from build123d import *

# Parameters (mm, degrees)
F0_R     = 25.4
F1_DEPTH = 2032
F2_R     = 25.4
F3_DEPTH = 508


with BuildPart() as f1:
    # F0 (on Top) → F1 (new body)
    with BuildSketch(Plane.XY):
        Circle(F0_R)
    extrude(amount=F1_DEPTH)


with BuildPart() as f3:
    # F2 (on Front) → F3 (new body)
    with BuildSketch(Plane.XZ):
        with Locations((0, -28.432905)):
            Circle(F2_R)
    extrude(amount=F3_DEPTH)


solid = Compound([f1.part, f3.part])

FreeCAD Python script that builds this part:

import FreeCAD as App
import Part
import Sketcher
from FreeCAD import Vector
Q = App.Units.Quantity

doc = App.newDocument("Part")
body = doc.addObject("PartDesign::Body", "Body")

sketch1 = body.newObject("Sketcher::SketchObject", "Sketch")
sketch1.AttachmentSupport = (doc.getObject("XY_Plane"), [""])
sketch1.MapMode = "FlatFace"
sketch1.addGeometry(Part.Circle(Vector(0, 0, 0), Vector(0, 0, 1), 25), False)
sketch1.addConstraint([
    Sketcher.Constraint("Coincident", 0, 3, -1, 1),
    Sketcher.Constraint("Diameter", 0, Q("2 in")),
])
pad1 = body.newObject("PartDesign::Pad", "Pad")
pad1.Profile = sketch1
pad1.Length = Q("80 in")
body2 = doc.addObject("PartDesign::Body", "Body001")

sketch2 = body2.newObject("Sketcher::SketchObject", "Sketch001")
sketch2.AttachmentSupport = (doc.getObject("XZ_Plane001"), [""])
sketch2.MapMode = "FlatFace"
sketch2.addGeometry(Part.Circle(Vector(0, -28, 0), Vector(0, 0, 1), 25), False)
sketch2.addConstraint([
    Sketcher.Constraint("PointOnObject", 0, 3, -2),
    Sketcher.Constraint("Diameter", 0, Q("2 in")),
    Sketcher.Constraint("DistanceY", 0, 3, -1, 1, 28.432905),
])
pad2 = body2.newObject("PartDesign::Pad", "Pad001")
pad2.Profile = sketch2
pad2.Length = Q("20 in")

doc.recompute()
